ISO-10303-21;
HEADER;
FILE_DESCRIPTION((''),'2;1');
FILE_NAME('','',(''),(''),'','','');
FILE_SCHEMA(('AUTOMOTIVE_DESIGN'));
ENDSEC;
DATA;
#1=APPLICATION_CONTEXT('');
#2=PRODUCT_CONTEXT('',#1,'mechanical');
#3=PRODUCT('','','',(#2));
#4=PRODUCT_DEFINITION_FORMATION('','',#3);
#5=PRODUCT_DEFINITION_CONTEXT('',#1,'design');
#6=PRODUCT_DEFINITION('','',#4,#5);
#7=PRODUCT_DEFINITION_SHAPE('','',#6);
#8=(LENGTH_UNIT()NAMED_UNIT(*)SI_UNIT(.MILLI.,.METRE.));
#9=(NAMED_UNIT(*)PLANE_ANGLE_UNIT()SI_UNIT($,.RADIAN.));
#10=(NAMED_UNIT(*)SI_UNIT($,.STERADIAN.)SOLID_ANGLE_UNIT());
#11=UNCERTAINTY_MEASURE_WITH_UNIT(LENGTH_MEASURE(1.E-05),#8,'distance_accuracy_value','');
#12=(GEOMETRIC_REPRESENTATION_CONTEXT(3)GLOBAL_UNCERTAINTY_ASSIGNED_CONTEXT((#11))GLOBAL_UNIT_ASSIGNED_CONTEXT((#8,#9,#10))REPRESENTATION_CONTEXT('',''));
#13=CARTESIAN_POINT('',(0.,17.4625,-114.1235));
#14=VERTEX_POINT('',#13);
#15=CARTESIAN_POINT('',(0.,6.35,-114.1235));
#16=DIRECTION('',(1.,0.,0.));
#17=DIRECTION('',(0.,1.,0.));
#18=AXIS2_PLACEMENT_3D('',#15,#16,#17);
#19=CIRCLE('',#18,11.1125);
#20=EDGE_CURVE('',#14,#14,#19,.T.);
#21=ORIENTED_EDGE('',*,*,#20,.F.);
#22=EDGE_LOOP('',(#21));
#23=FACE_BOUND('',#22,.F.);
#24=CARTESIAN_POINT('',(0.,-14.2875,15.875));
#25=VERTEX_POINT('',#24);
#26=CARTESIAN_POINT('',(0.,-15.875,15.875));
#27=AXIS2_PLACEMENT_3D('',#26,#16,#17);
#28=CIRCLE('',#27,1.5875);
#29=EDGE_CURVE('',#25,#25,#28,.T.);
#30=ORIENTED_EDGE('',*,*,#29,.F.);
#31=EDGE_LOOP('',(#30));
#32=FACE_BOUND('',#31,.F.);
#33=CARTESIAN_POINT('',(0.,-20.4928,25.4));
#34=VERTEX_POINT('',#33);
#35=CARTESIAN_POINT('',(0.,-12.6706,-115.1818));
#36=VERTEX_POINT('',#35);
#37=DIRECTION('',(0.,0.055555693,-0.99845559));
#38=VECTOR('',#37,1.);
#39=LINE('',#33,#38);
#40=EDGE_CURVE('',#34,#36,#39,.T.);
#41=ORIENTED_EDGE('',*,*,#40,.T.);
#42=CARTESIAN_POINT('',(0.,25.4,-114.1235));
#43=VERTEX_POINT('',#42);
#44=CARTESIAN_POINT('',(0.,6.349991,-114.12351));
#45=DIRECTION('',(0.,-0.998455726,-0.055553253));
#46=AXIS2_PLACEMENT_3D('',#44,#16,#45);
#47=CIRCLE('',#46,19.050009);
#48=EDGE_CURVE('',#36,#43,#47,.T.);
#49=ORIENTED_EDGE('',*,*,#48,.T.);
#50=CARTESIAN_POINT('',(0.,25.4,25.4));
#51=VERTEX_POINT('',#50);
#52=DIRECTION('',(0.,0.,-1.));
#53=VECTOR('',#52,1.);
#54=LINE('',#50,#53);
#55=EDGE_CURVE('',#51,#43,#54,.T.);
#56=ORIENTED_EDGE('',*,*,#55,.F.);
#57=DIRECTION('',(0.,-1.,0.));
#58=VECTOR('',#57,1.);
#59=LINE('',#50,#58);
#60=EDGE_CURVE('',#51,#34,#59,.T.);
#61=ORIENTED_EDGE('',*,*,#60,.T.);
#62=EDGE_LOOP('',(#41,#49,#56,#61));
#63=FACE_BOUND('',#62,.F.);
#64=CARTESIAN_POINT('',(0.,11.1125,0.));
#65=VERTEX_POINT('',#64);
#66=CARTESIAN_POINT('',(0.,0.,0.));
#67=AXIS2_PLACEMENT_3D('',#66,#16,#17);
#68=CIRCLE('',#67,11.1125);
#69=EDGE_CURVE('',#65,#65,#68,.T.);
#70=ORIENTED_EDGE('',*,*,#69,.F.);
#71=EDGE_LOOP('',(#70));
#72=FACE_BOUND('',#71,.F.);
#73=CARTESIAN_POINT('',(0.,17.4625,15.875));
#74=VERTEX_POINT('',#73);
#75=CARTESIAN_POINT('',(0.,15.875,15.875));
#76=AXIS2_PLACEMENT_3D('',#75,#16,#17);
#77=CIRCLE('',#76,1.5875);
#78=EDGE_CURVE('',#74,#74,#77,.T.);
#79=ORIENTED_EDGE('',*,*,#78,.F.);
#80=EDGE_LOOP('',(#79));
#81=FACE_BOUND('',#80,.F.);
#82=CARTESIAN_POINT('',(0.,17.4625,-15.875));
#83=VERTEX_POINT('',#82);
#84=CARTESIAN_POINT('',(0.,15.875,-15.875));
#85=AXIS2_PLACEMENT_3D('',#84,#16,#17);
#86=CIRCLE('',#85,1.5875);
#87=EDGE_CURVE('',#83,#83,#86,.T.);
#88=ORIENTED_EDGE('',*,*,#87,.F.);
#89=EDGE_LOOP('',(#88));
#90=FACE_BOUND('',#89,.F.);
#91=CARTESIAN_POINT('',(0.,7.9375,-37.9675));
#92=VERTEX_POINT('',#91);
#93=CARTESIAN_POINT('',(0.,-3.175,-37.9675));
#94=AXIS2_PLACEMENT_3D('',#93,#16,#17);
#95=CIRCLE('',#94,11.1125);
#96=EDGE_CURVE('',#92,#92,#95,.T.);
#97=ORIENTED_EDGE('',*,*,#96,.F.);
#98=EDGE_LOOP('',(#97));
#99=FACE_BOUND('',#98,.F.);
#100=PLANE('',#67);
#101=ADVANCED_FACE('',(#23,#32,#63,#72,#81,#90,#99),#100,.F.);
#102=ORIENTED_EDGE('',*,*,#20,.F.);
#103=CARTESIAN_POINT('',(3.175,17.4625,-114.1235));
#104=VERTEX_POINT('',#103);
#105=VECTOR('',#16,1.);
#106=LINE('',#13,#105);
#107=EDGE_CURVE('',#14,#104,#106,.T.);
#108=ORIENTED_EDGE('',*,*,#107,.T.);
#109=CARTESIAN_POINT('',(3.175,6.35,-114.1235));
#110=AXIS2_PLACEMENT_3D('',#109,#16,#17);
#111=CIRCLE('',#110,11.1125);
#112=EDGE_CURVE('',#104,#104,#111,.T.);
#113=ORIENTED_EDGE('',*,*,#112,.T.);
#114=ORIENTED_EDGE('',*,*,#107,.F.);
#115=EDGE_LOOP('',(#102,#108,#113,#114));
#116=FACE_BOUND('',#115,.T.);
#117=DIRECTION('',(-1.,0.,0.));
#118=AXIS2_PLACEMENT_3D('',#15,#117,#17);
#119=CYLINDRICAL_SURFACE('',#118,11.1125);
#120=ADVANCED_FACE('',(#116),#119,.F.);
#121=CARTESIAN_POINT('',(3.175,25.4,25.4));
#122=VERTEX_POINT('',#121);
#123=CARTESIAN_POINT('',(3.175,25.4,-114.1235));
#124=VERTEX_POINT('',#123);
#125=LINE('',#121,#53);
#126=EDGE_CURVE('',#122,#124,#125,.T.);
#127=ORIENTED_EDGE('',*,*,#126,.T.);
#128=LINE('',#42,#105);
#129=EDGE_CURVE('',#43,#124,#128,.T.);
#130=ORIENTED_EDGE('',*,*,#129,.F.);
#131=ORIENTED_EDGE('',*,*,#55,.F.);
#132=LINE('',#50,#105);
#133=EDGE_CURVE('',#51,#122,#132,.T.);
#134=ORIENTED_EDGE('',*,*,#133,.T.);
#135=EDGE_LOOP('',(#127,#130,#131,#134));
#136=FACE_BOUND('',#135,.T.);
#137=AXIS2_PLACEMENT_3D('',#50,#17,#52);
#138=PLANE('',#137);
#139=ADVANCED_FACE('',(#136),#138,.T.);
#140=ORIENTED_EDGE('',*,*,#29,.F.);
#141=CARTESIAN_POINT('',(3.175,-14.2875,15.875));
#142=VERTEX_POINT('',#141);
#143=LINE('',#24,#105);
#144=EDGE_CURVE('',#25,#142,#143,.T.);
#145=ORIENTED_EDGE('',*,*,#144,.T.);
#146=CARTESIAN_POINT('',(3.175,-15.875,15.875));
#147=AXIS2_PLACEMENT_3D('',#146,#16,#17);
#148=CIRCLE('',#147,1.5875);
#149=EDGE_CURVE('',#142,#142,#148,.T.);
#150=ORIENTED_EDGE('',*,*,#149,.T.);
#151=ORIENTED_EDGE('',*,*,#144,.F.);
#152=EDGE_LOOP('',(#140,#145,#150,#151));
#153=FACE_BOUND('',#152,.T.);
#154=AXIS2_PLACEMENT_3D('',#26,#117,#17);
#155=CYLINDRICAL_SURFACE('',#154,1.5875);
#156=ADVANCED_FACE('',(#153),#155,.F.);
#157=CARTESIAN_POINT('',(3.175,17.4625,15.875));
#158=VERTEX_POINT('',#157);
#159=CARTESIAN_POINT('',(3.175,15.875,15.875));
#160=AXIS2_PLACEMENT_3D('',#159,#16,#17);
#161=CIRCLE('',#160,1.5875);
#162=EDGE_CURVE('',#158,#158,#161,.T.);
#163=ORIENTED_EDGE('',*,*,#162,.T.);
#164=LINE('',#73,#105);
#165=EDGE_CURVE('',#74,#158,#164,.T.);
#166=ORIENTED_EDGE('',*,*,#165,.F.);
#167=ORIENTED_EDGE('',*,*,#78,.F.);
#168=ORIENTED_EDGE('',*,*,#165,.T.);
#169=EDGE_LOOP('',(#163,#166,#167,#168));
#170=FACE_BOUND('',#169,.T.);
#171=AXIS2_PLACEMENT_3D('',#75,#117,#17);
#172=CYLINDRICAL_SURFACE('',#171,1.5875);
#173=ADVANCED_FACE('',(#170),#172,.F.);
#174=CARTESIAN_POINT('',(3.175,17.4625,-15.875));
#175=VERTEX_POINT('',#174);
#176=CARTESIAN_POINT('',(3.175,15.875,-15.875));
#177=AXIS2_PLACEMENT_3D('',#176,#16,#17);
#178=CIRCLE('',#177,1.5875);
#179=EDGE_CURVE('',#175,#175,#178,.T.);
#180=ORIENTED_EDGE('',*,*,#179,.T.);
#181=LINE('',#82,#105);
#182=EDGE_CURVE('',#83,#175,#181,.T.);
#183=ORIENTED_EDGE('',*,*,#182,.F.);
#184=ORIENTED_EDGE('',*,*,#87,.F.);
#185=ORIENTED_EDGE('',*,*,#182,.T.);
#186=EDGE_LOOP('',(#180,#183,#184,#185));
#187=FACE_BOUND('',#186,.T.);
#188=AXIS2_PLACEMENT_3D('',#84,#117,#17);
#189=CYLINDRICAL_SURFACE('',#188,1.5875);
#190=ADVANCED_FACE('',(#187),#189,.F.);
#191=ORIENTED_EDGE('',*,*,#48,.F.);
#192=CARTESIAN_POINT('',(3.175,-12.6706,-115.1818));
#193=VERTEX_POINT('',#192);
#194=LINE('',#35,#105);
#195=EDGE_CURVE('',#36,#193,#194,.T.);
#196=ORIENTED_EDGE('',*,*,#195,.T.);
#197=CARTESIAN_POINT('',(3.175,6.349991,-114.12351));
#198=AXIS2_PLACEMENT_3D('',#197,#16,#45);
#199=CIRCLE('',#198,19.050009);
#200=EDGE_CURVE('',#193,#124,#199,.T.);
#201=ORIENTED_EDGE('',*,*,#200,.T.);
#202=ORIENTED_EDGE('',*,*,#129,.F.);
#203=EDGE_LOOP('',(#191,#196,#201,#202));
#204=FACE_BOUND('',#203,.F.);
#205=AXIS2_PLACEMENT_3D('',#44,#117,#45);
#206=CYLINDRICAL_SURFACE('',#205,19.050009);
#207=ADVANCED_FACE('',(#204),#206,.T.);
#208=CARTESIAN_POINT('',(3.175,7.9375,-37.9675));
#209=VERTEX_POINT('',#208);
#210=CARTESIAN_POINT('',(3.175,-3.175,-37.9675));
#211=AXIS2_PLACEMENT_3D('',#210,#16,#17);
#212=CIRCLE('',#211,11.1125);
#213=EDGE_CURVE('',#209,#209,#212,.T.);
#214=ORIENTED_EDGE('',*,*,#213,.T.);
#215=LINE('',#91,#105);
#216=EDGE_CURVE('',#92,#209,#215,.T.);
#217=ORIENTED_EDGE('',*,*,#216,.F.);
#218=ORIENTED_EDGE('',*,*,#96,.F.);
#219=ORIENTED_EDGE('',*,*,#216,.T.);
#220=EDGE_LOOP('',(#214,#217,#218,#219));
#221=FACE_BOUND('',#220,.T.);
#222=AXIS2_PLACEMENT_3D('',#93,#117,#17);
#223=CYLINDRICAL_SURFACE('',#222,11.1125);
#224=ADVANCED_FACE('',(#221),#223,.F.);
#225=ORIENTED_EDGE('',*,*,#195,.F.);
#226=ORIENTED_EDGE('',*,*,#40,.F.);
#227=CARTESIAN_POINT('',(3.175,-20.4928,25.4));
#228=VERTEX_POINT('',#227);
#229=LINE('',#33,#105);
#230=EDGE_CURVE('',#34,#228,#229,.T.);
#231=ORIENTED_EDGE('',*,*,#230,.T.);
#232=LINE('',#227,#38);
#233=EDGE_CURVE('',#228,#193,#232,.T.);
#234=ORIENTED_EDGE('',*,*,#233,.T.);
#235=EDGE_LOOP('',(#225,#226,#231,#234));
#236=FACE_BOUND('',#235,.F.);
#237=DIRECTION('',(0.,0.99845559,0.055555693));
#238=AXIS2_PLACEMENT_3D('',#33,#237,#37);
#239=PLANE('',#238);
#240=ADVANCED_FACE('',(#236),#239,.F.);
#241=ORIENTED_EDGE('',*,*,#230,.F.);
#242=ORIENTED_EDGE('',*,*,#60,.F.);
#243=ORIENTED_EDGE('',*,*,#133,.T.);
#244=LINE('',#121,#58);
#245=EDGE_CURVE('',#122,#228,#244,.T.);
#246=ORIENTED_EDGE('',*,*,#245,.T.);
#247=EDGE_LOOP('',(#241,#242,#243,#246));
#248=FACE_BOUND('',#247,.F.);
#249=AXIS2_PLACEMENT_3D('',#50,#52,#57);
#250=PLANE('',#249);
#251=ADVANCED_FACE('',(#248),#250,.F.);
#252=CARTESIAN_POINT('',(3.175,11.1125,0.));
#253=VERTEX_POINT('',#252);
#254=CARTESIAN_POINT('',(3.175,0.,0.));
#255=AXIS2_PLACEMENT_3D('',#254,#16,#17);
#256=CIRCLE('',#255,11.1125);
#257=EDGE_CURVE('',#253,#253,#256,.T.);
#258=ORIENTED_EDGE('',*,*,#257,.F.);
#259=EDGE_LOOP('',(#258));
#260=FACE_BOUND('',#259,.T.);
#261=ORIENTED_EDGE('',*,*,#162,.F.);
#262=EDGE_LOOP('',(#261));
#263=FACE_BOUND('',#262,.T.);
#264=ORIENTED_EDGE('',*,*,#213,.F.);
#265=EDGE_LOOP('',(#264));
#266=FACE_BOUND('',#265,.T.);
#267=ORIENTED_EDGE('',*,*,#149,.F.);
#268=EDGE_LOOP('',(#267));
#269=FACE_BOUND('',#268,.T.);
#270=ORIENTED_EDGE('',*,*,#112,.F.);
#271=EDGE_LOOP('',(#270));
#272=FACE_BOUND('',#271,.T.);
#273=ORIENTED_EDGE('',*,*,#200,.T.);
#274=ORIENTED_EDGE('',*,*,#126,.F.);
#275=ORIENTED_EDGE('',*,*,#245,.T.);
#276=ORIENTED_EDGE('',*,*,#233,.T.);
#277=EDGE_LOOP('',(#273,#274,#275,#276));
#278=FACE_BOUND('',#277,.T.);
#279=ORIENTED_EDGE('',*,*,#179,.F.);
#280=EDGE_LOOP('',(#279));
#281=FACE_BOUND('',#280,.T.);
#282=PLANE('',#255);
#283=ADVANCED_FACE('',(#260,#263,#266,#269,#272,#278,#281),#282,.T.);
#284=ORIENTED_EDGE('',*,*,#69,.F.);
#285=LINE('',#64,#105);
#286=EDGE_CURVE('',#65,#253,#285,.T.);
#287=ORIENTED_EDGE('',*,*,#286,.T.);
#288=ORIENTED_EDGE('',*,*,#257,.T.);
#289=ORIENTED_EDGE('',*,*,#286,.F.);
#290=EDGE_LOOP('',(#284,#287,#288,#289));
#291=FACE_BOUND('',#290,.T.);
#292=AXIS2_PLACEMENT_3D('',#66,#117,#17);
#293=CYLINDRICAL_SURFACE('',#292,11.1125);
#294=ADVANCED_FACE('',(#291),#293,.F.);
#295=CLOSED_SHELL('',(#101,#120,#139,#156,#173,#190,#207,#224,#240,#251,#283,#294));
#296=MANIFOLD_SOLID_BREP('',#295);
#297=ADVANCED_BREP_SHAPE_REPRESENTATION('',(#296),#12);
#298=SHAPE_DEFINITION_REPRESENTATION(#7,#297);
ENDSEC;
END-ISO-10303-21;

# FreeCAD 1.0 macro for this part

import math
import FreeCAD as App
import Part
import Sketcher

V = App.Vector
Q = App.Units.Quantity

doc = App.newDocument("Part")
body = doc.addObject("PartDesign::Body", "Body")

# Sketch on YZ plane
sketch1 = body.newObject("Sketcher::SketchObject", "Sketch")
sketch1.AttachmentSupport = (doc.getObject("YZ_Plane"), [""])
sketch1.MapMode = "FlatFace"
sketch1.addGeometry(Part.LineSegment(V(25.4, -114.1, 0), V(25.4, 25.4, 0)), False)
sketch1.addGeometry(Part.LineSegment(V(25.4, 25.4, 0), V(-20.5, 25.4, 0)), False)
sketch1.addGeometry(Part.LineSegment(V(-20.5, 25.4, 0), V(-12.7, -115.2, 0)), False)
sketch1.addGeometry(Part.ArcOfCircle(Part.Circle(V(6.3, -114.1, 0), V(0, 0, 1), 19.1), math.radians(-177), math.radians(0)), False)
sketch1.addGeometry(Part.Circle(V(6.3, -114.1, 0), V(0, 0, 1), 11.1), False)
sketch1.addGeometry(Part.Circle(V(-3.2, -38, 0), V(0, 0, 1), 11.1), False)
sketch1.addGeometry(Part.Circle(V(-15.9, 15.9, 0), V(0, 0, 1), 1.6), False)
sketch1.addGeometry(Part.Circle(V(0, 0, 0), V(0, 0, 1), 11.1), False)
sketch1.addGeometry(Part.Circle(V(15.9, -15.9, 0), V(0, 0, 1), 1.6), False)
sketch1.addGeometry(Part.Circle(V(15.9, 15.9, 0), V(0, 0, 1), 1.6), False)
sketch1.addConstraint(Sketcher.Constraint("Coincident", 0, 2, 1, 1))
sketch1.addConstraint(Sketcher.Constraint("Coincident", 1, 2, 2, 1))
sketch1.addConstraint(Sketcher.Constraint("Tangent", 2, 2, 3, 1))
sketch1.addConstraint(Sketcher.Constraint("Tangent", 3, 2, 0, 1))
sketch1.addConstraint(Sketcher.Constraint("Vertical", 0))
sketch1.addConstraint(Sketcher.Constraint("Horizontal", 1))
sketch1.addConstraint(Sketcher.Constraint("Coincident", 7, 3, -1, 1))
sketch1.addConstraint(Sketcher.Constraint("Coincident", 4, 3, 3, 3))
sketch1.addConstraint(Sketcher.Constraint("Equal", 4, 5))
sketch1.addConstraint(Sketcher.Constraint("Equal", 5, 7))
sketch1.addConstraint(Sketcher.Constraint("Equal", 6, 8))
sketch1.addConstraint(Sketcher.Constraint("Equal", 8, 9))
sketch1.addConstraint(Sketcher.Constraint("Symmetric", 6, 3, 8, 3, -1, 1))
sketch1.addConstraint(Sketcher.Constraint("Symmetric", 6, 3, 9, 3, -2))
sketch1.addConstraint(Sketcher.Constraint("Radius", 3, Q("0.75 in")))
sketch1.addConstraint(Sketcher.Constraint("Diameter", 4, Q("0.875 in")))
sketch1.addConstraint(Sketcher.Constraint("Diameter", 6, Q("0.125 in")))
sketch1.addConstraint(Sketcher.Constraint("DistanceX", -1, 1, 0, 2, Q("1 in")))
sketch1.addConstraint(Sketcher.Constraint("DistanceY", -1, 1, 0, 2, Q("1 in")))
sketch1.addConstraint(Sketcher.Constraint("DistanceX", 5, 3, 8, 3, Q("0.75 in")))
sketch1.addConstraint(Sketcher.Constraint("DistanceX", 6, 3, 8, 3, Q("1.25 in")))
sketch1.addConstraint(Sketcher.Constraint("DistanceY", 8, 3, 6, 3, Q("1.25 in")))
sketch1.addConstraint(Sketcher.Constraint("DistanceX", 1, 2, 1, 1, Q("1.8068 in")))
sketch1.addConstraint(Sketcher.Constraint("DistanceY", 0, 1, 0, 2, 139.5235))
sketch1.addConstraint(Sketcher.Constraint("DistanceY", 5, 3, -1, 1, 37.9675))
pad1 = body.newObject("PartDesign::Pad", "Pad")
pad1.Profile = sketch1
pad1.Length = Q("0.125 in")

doc.recompute()
